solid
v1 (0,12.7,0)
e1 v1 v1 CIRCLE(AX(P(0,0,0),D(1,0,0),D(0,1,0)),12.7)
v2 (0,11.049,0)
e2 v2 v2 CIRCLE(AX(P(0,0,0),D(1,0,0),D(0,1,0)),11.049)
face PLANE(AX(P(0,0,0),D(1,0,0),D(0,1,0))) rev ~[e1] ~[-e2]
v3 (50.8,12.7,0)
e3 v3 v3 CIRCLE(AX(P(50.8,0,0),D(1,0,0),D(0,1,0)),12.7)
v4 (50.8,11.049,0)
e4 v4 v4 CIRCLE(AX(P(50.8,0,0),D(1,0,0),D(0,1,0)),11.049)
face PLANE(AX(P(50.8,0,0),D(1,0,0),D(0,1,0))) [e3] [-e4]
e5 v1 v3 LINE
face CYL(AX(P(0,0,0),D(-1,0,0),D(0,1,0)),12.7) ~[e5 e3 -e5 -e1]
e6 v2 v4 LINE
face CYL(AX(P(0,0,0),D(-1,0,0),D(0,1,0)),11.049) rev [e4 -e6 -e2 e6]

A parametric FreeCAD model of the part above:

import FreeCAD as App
import Part
import Sketcher
from FreeCAD import Vector
Q = App.Units.Quantity

doc = App.newDocument("Part")
params = doc.addObject("Spreadsheet::Sheet", "Params")
for row, (alias, value) in enumerate([
    ("sketch1_diameter", "1 in"),
    ("sketch1_diameter2", "0.87 in"),
    ("pad1_length", "2 in"),
], start=1):
    params.set(f"A{row}", alias)
    params.set(f"B{row}", "=" + value)
    params.setAlias(f"B{row}", alias)

body = doc.addObject("PartDesign::Body", "Body")

# Sketch on YZ plane
sketch1 = body.newObject("Sketcher::SketchObject", "Sketch")
sketch1.AttachmentSupport = (doc.getObject("YZ_Plane"), [""])
sketch1.MapMode = "FlatFace"
sketch1.addGeometry(Part.Circle(Vector(0, 0, 0), Vector(0, 0, 1), 13), False)
sketch1.addGeometry(Part.Circle(Vector(0, 0, 0), Vector(0, 0, 1), 11), False)
sketch1.addConstraint(Sketcher.Constraint("Coincident", 0, 3, -1, 1))
sketch1.addConstraint(Sketcher.Constraint("Coincident", 1, 3, -1, 1))
sketch1.addConstraint(Sketcher.Constraint("Diameter", 0, Q("1 in")))
sketch1.addConstraint(Sketcher.Constraint("Diameter", 1, Q("0.87 in")))
sketch1.setExpression("Constraints[2]", "Params.sketch1_diameter")
sketch1.setExpression("Constraints[3]", "Params.sketch1_diameter2")
pad1 = body.newObject("PartDesign::Pad", "Pad")
pad1.Profile = sketch1
pad1.setExpression("Length", "Params.pad1_length")

doc.recompute()
